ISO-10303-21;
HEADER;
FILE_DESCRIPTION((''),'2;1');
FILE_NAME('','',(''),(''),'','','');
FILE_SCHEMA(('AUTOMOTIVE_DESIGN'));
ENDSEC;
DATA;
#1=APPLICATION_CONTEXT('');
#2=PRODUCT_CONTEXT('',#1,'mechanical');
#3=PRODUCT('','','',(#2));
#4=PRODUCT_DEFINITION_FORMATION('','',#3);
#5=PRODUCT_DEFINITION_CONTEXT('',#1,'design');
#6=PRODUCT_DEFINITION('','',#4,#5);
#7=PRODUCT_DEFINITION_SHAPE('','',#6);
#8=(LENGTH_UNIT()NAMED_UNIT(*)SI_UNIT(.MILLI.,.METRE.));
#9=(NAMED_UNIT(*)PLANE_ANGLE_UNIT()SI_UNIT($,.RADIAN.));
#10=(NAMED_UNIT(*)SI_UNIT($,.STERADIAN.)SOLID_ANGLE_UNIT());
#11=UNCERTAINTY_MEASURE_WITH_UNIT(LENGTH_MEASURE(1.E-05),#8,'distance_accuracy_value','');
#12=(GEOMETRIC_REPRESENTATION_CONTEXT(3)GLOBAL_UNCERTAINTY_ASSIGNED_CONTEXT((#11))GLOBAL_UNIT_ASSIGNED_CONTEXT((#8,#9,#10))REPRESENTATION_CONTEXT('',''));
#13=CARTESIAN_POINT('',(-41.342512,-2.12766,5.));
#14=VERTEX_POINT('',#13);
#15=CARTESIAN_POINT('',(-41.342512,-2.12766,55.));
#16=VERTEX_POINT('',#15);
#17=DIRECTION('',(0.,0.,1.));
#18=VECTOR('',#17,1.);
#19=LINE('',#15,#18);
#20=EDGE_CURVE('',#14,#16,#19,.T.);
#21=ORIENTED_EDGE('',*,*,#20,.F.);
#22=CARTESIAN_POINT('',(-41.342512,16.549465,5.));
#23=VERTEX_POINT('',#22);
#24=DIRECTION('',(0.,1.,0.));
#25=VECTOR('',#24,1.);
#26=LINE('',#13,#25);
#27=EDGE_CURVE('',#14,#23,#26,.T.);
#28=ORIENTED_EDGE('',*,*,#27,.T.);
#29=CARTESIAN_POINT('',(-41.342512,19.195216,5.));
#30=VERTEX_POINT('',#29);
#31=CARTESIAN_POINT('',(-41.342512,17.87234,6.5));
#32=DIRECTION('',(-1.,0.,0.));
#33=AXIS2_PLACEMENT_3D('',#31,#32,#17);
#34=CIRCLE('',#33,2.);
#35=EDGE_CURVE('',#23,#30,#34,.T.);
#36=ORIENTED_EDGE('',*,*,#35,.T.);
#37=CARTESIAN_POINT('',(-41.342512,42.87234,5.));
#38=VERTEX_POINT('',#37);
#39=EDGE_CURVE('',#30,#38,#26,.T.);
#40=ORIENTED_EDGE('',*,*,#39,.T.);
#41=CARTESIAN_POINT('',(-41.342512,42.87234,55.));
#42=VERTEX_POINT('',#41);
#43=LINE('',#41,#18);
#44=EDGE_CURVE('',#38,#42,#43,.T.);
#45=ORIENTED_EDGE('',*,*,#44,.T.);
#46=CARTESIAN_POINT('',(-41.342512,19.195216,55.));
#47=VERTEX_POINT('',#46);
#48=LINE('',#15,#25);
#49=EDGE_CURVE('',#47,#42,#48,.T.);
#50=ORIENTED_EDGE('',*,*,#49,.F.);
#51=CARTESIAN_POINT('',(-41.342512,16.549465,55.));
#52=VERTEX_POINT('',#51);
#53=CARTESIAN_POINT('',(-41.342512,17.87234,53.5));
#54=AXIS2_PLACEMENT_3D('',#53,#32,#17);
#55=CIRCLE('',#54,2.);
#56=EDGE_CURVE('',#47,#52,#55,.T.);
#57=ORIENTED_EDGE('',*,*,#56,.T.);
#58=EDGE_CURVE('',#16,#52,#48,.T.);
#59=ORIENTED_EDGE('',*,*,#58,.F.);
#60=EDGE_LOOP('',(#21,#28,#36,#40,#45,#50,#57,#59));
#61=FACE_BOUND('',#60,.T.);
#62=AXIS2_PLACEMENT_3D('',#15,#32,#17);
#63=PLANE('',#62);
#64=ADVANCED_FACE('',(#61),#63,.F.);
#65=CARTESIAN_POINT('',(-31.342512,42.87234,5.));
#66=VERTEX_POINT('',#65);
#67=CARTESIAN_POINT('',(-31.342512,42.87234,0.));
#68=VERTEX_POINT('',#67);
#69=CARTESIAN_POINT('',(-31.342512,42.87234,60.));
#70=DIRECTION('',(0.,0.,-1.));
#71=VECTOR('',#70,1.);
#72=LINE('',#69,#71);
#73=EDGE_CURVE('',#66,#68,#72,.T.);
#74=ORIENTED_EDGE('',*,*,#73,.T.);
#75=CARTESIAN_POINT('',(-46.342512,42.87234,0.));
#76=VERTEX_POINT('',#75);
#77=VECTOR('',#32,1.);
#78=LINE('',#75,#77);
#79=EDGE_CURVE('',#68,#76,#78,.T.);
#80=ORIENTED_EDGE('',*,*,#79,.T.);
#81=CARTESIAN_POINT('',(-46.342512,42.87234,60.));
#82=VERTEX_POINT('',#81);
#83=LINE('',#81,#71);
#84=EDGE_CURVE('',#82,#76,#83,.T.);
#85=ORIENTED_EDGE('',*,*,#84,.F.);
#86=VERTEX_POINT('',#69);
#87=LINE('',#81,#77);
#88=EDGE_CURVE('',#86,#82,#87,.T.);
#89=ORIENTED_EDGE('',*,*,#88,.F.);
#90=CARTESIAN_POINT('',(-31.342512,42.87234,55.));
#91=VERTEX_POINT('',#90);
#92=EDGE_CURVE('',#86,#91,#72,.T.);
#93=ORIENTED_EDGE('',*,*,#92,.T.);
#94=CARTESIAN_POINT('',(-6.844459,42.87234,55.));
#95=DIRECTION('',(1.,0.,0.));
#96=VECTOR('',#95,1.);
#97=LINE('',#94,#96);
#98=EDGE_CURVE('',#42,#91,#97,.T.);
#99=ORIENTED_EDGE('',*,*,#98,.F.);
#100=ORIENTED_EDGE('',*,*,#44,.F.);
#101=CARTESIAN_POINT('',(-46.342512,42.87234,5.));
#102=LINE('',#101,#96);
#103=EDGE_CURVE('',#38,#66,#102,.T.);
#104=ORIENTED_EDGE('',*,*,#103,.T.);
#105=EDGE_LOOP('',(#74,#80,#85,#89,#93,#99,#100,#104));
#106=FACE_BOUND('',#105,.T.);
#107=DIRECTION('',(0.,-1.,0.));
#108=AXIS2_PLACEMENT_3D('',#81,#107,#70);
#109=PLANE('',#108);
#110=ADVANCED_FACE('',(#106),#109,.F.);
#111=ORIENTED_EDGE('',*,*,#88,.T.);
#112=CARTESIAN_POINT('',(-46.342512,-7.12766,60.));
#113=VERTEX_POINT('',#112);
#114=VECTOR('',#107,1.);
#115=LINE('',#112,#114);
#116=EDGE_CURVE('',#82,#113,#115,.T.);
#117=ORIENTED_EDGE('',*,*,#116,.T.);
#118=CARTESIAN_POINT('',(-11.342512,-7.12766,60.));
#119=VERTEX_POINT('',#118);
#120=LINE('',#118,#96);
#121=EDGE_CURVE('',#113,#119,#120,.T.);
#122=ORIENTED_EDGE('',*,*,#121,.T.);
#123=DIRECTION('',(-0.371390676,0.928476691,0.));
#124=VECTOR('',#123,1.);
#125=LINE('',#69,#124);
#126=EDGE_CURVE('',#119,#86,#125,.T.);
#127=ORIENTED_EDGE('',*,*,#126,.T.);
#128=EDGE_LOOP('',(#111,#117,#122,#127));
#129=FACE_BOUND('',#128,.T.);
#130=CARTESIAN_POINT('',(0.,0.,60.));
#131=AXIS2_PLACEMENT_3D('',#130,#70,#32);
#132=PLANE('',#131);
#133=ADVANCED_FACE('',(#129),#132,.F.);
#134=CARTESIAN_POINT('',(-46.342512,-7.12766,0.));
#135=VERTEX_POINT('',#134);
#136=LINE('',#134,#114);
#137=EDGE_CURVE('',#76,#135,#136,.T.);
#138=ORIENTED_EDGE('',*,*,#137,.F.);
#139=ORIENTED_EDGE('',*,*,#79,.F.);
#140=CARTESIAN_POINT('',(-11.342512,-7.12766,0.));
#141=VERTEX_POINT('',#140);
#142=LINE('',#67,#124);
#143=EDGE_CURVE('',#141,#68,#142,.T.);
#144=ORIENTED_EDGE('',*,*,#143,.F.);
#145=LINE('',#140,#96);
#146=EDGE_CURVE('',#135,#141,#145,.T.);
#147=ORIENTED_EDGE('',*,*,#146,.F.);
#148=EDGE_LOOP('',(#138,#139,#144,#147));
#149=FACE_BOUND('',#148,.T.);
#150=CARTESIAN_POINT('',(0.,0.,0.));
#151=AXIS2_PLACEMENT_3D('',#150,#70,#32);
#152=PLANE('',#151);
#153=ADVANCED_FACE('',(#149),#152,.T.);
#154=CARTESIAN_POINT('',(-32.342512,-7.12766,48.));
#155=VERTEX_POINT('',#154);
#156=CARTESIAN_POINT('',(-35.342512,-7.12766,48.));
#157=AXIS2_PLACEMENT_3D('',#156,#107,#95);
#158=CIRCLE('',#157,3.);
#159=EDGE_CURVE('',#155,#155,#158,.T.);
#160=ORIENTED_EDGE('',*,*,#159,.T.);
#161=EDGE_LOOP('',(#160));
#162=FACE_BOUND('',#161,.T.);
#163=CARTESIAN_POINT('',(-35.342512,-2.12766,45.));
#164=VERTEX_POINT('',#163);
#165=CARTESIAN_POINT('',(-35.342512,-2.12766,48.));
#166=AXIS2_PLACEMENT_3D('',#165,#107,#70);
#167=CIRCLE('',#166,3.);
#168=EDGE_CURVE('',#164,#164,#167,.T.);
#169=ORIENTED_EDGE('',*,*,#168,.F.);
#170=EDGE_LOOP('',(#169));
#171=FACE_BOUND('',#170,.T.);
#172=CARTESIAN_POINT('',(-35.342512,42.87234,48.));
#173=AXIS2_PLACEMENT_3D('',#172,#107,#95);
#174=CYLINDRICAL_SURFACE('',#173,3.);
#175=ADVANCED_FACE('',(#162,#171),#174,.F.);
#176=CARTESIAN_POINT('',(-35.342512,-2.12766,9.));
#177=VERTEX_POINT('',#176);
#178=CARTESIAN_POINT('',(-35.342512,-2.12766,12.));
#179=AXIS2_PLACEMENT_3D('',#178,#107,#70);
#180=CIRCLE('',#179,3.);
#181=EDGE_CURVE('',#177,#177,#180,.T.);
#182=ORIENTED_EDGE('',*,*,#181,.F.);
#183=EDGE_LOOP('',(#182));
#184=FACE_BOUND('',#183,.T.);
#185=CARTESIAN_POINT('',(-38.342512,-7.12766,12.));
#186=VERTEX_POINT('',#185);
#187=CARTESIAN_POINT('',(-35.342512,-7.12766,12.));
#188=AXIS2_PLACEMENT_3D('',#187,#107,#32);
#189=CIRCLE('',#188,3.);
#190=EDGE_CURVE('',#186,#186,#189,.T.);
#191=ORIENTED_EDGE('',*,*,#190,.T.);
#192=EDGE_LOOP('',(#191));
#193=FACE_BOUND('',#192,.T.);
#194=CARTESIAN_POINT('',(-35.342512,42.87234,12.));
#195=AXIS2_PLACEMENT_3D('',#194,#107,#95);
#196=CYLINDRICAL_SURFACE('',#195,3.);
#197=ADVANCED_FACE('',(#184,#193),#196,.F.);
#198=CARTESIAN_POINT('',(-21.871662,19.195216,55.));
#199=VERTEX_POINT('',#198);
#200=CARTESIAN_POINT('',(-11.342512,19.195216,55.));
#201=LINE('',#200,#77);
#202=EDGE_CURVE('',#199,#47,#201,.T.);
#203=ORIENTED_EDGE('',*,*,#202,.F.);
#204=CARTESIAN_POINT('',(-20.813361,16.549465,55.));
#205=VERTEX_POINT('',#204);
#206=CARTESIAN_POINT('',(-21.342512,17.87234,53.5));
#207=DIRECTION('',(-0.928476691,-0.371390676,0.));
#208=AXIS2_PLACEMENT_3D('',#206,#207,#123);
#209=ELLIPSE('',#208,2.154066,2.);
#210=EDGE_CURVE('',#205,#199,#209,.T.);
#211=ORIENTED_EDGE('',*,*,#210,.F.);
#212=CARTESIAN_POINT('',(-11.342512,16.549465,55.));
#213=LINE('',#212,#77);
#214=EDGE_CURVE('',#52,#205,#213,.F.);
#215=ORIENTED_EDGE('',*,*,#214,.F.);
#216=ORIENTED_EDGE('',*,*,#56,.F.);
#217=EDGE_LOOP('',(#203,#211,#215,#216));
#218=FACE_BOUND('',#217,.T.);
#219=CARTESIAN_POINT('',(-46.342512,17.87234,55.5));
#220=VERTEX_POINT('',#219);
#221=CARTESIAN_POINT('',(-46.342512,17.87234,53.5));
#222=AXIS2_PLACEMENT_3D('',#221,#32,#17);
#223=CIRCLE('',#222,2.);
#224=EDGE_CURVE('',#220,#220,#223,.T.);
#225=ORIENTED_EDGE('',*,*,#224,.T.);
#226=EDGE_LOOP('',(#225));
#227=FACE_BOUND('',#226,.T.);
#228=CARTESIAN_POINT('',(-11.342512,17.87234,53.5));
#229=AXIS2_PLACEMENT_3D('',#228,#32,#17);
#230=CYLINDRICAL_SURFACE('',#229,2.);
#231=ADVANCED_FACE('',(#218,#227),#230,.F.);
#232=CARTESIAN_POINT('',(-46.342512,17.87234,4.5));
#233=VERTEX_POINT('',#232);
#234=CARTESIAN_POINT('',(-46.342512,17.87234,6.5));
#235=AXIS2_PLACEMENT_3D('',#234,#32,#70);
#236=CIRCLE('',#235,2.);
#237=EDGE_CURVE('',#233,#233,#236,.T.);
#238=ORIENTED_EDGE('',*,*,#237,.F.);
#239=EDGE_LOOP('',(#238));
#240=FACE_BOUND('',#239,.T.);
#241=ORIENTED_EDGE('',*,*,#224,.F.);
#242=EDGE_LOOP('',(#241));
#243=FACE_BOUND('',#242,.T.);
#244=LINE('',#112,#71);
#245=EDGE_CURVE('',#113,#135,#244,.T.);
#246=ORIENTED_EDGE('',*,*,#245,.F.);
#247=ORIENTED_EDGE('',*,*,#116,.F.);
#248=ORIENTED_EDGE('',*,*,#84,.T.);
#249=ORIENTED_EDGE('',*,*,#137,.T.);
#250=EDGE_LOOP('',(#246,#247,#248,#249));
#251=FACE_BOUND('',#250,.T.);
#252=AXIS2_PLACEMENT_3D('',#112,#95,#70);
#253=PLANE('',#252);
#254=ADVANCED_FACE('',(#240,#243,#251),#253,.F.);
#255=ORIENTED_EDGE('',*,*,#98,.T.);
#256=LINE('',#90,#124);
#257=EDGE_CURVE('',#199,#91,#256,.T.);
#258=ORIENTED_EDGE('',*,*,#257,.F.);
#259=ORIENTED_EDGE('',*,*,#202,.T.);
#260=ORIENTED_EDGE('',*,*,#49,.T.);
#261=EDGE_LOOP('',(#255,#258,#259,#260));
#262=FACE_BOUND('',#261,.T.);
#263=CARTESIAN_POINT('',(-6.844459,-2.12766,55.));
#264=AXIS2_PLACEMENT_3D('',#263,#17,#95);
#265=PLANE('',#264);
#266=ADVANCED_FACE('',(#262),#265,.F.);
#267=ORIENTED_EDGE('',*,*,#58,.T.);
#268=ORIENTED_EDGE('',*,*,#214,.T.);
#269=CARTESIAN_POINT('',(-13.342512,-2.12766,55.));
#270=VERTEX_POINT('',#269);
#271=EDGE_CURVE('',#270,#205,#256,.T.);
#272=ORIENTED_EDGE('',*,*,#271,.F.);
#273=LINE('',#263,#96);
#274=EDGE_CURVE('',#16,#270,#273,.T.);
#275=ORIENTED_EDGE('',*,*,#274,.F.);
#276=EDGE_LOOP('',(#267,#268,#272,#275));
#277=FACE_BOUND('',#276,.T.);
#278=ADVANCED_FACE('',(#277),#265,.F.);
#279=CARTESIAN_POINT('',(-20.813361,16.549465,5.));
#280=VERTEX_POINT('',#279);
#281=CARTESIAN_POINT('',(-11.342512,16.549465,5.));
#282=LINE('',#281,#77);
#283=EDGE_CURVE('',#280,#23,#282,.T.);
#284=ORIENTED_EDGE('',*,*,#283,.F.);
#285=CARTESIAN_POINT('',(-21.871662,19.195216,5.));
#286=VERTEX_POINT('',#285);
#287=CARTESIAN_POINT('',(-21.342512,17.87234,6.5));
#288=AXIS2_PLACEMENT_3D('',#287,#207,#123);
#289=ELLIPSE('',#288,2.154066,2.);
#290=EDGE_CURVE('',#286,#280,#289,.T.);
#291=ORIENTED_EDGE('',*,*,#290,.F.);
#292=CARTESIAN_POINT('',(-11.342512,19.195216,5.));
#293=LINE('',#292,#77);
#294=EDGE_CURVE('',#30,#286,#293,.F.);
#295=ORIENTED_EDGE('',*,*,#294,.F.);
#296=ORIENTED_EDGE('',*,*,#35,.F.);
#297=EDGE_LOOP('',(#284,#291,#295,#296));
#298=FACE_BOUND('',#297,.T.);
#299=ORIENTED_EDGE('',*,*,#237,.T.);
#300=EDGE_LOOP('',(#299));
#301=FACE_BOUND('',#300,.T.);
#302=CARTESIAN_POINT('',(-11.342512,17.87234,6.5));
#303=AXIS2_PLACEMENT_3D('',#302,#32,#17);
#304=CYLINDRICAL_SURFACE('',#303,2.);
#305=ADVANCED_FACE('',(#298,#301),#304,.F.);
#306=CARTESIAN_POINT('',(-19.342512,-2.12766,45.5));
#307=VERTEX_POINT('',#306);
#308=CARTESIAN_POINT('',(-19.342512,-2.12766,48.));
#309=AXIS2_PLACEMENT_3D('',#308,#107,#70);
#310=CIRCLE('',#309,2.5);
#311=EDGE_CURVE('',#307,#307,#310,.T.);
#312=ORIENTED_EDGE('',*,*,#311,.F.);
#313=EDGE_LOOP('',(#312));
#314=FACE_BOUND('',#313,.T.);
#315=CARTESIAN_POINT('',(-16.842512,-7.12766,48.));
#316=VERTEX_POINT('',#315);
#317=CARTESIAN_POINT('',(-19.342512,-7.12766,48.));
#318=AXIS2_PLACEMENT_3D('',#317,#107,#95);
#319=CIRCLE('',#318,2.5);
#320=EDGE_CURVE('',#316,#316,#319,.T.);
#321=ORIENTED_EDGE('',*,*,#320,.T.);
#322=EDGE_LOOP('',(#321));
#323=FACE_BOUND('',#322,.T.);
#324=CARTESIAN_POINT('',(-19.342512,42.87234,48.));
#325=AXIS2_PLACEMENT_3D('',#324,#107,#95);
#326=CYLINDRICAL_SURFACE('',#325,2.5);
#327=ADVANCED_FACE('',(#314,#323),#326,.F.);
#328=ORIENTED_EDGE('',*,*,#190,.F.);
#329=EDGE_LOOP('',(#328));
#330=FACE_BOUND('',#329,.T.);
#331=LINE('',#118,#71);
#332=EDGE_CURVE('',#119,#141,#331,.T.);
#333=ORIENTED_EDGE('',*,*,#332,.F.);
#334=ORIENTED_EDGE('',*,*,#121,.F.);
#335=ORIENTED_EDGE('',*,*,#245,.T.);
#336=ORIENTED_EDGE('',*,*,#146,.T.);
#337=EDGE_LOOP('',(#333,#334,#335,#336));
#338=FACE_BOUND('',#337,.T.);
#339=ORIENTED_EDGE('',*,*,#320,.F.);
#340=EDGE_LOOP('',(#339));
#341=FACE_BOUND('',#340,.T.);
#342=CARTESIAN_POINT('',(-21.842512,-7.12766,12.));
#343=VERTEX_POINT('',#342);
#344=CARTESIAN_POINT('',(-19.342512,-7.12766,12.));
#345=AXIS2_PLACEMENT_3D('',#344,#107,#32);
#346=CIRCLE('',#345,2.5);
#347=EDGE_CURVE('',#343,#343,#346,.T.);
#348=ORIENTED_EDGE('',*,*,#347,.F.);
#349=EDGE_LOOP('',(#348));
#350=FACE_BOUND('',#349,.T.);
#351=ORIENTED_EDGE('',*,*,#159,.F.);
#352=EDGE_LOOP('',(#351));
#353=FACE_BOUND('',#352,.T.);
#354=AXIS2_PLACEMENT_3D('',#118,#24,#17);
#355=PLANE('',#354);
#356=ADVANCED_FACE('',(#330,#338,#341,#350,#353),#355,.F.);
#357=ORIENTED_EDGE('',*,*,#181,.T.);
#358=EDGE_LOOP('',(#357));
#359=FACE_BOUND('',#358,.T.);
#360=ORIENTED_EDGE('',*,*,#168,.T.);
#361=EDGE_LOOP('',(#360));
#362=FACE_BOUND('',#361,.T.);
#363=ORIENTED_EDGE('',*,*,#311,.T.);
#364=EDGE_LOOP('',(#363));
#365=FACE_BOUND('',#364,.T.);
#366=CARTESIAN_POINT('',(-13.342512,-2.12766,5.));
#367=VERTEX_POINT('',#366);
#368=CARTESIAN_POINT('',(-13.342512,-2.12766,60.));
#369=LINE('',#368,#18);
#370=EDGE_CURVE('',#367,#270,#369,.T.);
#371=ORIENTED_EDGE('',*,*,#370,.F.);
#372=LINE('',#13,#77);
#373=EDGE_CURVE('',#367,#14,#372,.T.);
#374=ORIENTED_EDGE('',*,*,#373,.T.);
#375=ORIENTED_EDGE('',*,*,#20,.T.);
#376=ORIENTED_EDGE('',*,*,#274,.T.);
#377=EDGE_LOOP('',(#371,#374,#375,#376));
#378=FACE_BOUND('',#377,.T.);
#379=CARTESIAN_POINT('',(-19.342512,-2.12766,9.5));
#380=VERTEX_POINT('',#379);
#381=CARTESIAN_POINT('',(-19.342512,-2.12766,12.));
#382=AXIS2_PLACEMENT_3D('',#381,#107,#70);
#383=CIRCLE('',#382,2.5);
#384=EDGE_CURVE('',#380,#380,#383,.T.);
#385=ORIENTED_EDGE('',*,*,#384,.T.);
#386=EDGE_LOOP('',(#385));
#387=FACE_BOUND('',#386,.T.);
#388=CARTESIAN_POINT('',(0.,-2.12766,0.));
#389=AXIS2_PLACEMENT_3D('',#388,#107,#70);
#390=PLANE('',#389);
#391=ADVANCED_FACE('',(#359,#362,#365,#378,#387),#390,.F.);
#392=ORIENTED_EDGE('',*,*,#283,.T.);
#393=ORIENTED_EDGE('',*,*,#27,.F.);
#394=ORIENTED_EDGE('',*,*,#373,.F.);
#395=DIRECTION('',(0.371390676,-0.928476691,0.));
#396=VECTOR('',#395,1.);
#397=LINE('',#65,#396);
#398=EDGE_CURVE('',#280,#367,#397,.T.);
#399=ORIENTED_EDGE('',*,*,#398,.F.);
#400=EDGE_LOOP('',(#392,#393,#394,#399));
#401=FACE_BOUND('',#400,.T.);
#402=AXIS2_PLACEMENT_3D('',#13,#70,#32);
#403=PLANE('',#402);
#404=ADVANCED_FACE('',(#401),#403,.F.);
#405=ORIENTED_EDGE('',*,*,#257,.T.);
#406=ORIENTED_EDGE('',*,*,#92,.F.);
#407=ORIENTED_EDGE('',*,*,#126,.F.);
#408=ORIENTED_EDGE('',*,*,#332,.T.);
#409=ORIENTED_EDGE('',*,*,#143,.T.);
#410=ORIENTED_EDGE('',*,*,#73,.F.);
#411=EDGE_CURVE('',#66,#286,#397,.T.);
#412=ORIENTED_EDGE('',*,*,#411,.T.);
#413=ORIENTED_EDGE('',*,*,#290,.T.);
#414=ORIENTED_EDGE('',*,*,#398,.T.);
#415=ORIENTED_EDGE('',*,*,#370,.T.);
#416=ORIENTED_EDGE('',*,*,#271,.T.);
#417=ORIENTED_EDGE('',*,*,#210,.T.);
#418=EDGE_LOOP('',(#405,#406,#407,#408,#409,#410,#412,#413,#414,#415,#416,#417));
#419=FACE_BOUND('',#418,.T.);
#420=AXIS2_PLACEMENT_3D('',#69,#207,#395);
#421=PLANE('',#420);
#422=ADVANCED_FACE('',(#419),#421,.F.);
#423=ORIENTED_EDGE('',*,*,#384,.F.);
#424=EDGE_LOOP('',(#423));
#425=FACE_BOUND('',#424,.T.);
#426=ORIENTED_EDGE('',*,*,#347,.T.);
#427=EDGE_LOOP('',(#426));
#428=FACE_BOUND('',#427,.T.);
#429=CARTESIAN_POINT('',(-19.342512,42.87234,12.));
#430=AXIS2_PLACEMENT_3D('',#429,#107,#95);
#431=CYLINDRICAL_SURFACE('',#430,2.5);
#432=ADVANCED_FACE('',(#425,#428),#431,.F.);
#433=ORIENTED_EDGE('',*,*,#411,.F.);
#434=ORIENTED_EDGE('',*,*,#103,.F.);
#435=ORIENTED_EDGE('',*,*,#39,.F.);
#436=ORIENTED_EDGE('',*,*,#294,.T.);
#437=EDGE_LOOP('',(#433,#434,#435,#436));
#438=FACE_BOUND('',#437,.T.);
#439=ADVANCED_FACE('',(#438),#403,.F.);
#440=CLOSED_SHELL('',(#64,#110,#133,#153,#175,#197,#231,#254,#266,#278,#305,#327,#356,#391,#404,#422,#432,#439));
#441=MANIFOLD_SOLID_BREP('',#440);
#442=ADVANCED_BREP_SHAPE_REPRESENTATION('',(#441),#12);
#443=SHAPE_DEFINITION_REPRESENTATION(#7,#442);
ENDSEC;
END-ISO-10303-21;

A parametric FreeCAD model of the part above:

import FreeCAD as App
import Part
import Sketcher
from FreeCAD import Vector
Q = App.Units.Quantity


def add_polygon(sketch, points):
    """Adds a closed chain of lines whose ends are joined by coincident constraints."""
    first, n = sketch.GeometryCount, len(points)
    for a, b in zip(points, points[1:] + points[:1]):
        sketch.addGeometry(Part.LineSegment(App.Vector(*a, 0), App.Vector(*b, 0)), False)
    for i in range(n):
        sketch.addConstraint(Sketcher.Constraint("Coincident", first + i, 2, first + (i + 1) % n, 1))

doc = App.newDocument("Part")
body = doc.addObject("PartDesign::Body", "Body")

sketch1 = body.newObject("Sketcher::SketchObject", "Sketch")
sketch1.AttachmentSupport = (doc.getObject("XY_Plane"), [""])
sketch1.MapMode = "FlatFace"
add_polygon(sketch1, [(-46, -7), (-11, -7), (-31, 43), (-46, 43)])
sketch1.addConstraint([
    Sketcher.Constraint("Horizontal", 0),
    Sketcher.Constraint("Horizontal", 2),
    Sketcher.Constraint("Vertical", 3),
    Sketcher.Constraint("DistanceX", 0, 1, 0, 2, Q("35 mm")),
    Sketcher.Constraint("DistanceX", 2, 2, 2, 1, Q("15 mm")),
    Sketcher.Constraint("DistanceY", 3, 2, 3, 1, Q("50 mm")),
    Sketcher.Constraint("DistanceX", 0, 2, -1, 1, Q("11.342512 mm")),
    Sketcher.Constraint("DistanceY", 0, 2, -1, 1, Q("7.12766 mm")),
])
pad1 = body.newObject("PartDesign::Pad", "Pad")
pad1.Profile = sketch1
pad1.Length = 60

sketch2 = body.newObject("Sketcher::SketchObject", "Sketch001")
sketch2.AttachmentSupport = (doc.getObject("XZ_Plane"), [""])
sketch2.MapMode = "FlatFace"
sketch2.AttachmentOffset = App.Placement(Vector(0, 0, -42.87234), App.Rotation())
add_polygon(sketch2, [(-41, 5), (-41, 55), (-7, 55), (-7, 5)])
sketch2.addConstraint([
    Sketcher.Constraint("Vertical", 0),
    Sketcher.Constraint("Horizontal", 1),
    Sketcher.Constraint("Vertical", 2),
    Sketcher.Constraint("Horizontal", 3),
    Sketcher.Constraint("DistanceY", 0, 1, 0, 2, Q("50 mm")),
    Sketcher.Constraint("DistanceY", -1, 1, 0, 2, Q("55 mm")),
    Sketcher.Constraint("DistanceX", 1, 1, 1, 2, Q("34.498052 mm")),
    Sketcher.Constraint("DistanceX", 0, 2, -1, 1, Q("41.342512 mm")),
])
pocket1 = body.newObject("PartDesign::Pocket", "Pocket")
pocket1.Profile = sketch2
pocket1.Length = 45
pocket1.Reversed = True

sketch3 = body.newObject("Sketcher::SketchObject", "Sketch002")
sketch3.AttachmentSupport = (doc.getObject("XZ_Plane"), [""])
sketch3.MapMode = "FlatFace"
sketch3.AttachmentOffset = App.Placement(Vector(0, 0, 7.12766), App.Rotation())
sketch3.addGeometry([
    Part.Circle(Vector(-35.3, 48, 0), Vector(0, 0, 1), 3),
    Part.Circle(Vector(-35.3, 12, 0), Vector(0, 0, 1), 3),
    Part.Circle(Vector(-19.3, 12, 0), Vector(0, 0, 1), 2.5),
    Part.Circle(Vector(-19.3, 48, 0), Vector(0, 0, 1), 2.5),
], False)
sketch3.addConstraint([
    Sketcher.Constraint("Equal", 0, 1),
    Sketcher.Constraint("Equal", 2, 3),
    Sketcher.Constraint("Horizontal", 1, 3, 2, 3),
    Sketcher.Constraint("Horizontal", 0, 3, 3, 3),
    Sketcher.Constraint("Vertical", 0, 3, 1, 3),
    Sketcher.Constraint("Vertical", 2, 3, 3, 3),
    Sketcher.Constraint("Diameter", 0, Q("6 mm")),
    Sketcher.Constraint("Diameter", 2, Q("5 mm")),
    Sketcher.Constraint("DistanceY", -1, 1, 0, 3, Q("48 mm")),
    Sketcher.Constraint("DistanceY", -1, 1, 1, 3, Q("12 mm")),
    Sketcher.Constraint("DistanceX", 1, 3, 2, 3, Q("16 mm")),
    Sketcher.Constraint("DistanceX", 0, 3, -1, 1, Q("35.342512 mm")),
])
pocket2 = body.newObject("PartDesign::Pocket", "Pocket001")
pocket2.Profile = sketch3
pocket2.Type = "ThroughAll"

sketch4 = body.newObject("Sketcher::SketchObject", "Sketch003")
sketch4.AttachmentSupport = (doc.getObject("YZ_Plane"), [""])
sketch4.MapMode = "FlatFace"
sketch4.AttachmentOffset = App.Placement(Vector(0, 0, -46.342512), App.Rotation())
sketch4.addGeometry([
    Part.Circle(Vector(17.9, 53.5, 0), Vector(0, 0, 1), 2),
    Part.Circle(Vector(17.9, 6.5, 0), Vector(0, 0, 1), 2),
], False)
sketch4.addConstraint([
    Sketcher.Constraint("Equal", 0, 1),
    Sketcher.Constraint("Vertical", 0, 3, 1, 3),
    Sketcher.Constraint("Diameter", 0, Q("4 mm")),
    Sketcher.Constraint("DistanceY", 1, 3, 0, 3, Q("47 mm")),
    Sketcher.Constraint("DistanceY", -1, 1, 0, 3, Q("53.5 mm")),
    Sketcher.Constraint("DistanceX", -1, 1, 0, 3, Q("17.87234 mm")),
])
pocket3 = body.newObject("PartDesign::Pocket", "Pocket002")
pocket3.Profile = sketch4
pocket3.Type = "ThroughAll"
pocket3.Reversed = True

doc.recompute()
